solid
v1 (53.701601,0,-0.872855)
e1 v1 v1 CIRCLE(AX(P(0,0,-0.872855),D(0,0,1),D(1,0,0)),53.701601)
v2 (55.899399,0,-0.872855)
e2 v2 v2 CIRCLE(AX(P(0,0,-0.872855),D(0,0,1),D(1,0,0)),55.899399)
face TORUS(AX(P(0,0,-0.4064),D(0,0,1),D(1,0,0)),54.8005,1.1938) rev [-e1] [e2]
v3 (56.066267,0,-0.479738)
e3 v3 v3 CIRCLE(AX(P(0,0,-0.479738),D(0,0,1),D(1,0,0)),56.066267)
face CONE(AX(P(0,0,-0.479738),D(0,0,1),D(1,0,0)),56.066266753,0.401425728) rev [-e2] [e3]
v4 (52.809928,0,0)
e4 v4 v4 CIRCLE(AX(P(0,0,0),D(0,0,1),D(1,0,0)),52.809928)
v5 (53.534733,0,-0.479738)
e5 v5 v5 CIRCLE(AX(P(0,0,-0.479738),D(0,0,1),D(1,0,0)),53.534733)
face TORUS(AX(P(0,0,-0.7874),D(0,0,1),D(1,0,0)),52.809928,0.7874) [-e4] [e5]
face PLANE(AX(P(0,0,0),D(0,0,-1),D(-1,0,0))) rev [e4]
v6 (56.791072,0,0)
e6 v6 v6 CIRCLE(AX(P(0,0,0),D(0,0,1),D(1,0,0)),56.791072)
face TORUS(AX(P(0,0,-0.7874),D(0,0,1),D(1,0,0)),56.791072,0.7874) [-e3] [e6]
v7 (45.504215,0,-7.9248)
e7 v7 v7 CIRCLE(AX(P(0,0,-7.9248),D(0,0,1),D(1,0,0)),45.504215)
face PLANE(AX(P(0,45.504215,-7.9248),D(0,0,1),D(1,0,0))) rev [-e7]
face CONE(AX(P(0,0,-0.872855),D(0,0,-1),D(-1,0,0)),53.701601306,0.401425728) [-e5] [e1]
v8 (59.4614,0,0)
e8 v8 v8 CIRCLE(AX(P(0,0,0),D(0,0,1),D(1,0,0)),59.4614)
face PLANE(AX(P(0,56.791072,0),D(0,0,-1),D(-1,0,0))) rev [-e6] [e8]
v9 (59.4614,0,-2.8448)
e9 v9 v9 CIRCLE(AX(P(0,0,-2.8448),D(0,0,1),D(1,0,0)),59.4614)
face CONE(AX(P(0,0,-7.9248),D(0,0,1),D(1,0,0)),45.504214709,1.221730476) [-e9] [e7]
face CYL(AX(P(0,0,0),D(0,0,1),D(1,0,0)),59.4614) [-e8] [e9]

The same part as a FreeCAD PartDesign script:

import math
import FreeCAD as App
import Part
import Sketcher

V = App.Vector
Q = App.Units.Quantity

doc = App.newDocument("Part")
body = doc.addObject("PartDesign::Body", "Body")

# Sketch on YZ plane
sketch1 = doc.addObject("Sketcher::SketchObject", "Sketch")
body.addObject(sketch1)
sketch1.AttachmentSupport = (doc.YZ_Plane, [""])
sketch1.MapMode = "FlatFace"
sketch1.addGeometry(Part.LineSegment(V(52.81, 0, 0), V(0, 0, 0)), False)
sketch1.addGeometry(Part.LineSegment(V(0, 0, 0), V(0, -7.92, 0)), False)
sketch1.addGeometry(Part.LineSegment(V(0, -7.92, 0), V(45.5, -7.92, 0)), False)
sketch1.addGeometry(Part.LineSegment(V(45.5, -7.92, 0), V(59.46, -2.84, 0)), False)
sketch1.addGeometry(Part.LineSegment(V(59.46, -2.84, 0), V(59.46, 0, 0)), False)
sketch1.addGeometry(Part.LineSegment(V(59.46, 0, 0), V(56.79, 0, 0)), False)
sketch1.addGeometry(Part.ArcOfCircle(Part.Circle(V(56.79, -0.79, 0), V(0, 0, 1), 0.79), math.radians(90), math.radians(157)), False)
sketch1.addGeometry(Part.LineSegment(V(56.07, -0.48, 0), V(55.9, -0.87, 0)), False)
sketch1.addGeometry(Part.ArcOfCircle(Part.Circle(V(54.8, -0.41, 0), V(0, 0, 1), 1.19), math.radians(-157), math.radians(-23)), False)
sketch1.addGeometry(Part.LineSegment(V(53.7, -0.87, 0), V(53.53, -0.48, 0)), False)
sketch1.addGeometry(Part.ArcOfCircle(Part.Circle(V(52.81, -0.79, 0), V(0, 0, 1), 0.79), math.radians(23), math.radians(90)), False)
sketch1.addConstraint(Sketcher.Constraint("Coincident", 0, 2, 1, 1))
sketch1.addConstraint(Sketcher.Constraint("Coincident", 1, 2, 2, 1))
sketch1.addConstraint(Sketcher.Constraint("Coincident", 2, 2, 3, 1))
sketch1.addConstraint(Sketcher.Constraint("Coincident", 3, 2, 4, 1))
sketch1.addConstraint(Sketcher.Constraint("Coincident", 4, 2, 5, 1))
sketch1.addConstraint(Sketcher.Constraint("Tangent", 5, 2, 6, 1))
sketch1.addConstraint(Sketcher.Constraint("Tangent", 6, 2, 7, 1))
sketch1.addConstraint(Sketcher.Constraint("Tangent", 7, 2, 8, 2))
sketch1.addConstraint(Sketcher.Constraint("Tangent", 8, 1, 9, 1))
sketch1.addConstraint(Sketcher.Constraint("Tangent", 9, 2, 10, 1))
sketch1.addConstraint(Sketcher.Constraint("Tangent", 10, 2, 0, 1))
sketch1.addConstraint(Sketcher.Constraint("Horizontal", 0))
sketch1.addConstraint(Sketcher.Constraint("Vertical", 1))
sketch1.addConstraint(Sketcher.Constraint("Horizontal", 2))
sketch1.addConstraint(Sketcher.Constraint("Vertical", 4))
sketch1.addConstraint(Sketcher.Constraint("Horizontal", 5))
sketch1.addConstraint(Sketcher.Constraint("Coincident", 0, 2, -1, 1))
sketch1.addConstraint(Sketcher.Constraint("Equal", 6, 10))
sketch1.addConstraint(Sketcher.Constraint("PointOnObject", 4, 2, -1))
sketch1.addConstraint(Sketcher.Constraint("Horizontal", 7, 2, 8, 1))
sketch1.addConstraint(Sketcher.Constraint("Angle", 3, Q("20 deg")))
sketch1.addConstraint(Sketcher.Constraint("Angle", 7, Q("-113 deg")))
sketch1.addConstraint(Sketcher.Constraint("Radius", 6, Q("0.031 in")))
sketch1.addConstraint(Sketcher.Constraint("Radius", 8, Q("0.047 in")))
sketch1.addConstraint(Sketcher.Constraint("DistanceY", 2, 2, 3, 2, Q("0.2 in")))
sketch1.addConstraint(Sketcher.Constraint("DistanceY", 1, 2, 1, 1, Q("0.312 in")))
sketch1.addConstraint(Sketcher.Constraint("DistanceY", 8, 3, -1, 1, Q("0.016 in")))
sketch1.addConstraint(Sketcher.Constraint("DistanceX", -1, 1, 3, 2, Q("2.341 in")))
sketch1.addConstraint(Sketcher.Constraint("DistanceX", -1, 1, 8, 3, Q("2.1575 in")))
revolution = doc.addObject("PartDesign::Revolution", "Revolution")
body.addObject(revolution)
revolution.Profile = sketch1
revolution.ReferenceAxis = (sketch1, ["V_Axis"])
revolution.Angle = 360

doc.recompute()
